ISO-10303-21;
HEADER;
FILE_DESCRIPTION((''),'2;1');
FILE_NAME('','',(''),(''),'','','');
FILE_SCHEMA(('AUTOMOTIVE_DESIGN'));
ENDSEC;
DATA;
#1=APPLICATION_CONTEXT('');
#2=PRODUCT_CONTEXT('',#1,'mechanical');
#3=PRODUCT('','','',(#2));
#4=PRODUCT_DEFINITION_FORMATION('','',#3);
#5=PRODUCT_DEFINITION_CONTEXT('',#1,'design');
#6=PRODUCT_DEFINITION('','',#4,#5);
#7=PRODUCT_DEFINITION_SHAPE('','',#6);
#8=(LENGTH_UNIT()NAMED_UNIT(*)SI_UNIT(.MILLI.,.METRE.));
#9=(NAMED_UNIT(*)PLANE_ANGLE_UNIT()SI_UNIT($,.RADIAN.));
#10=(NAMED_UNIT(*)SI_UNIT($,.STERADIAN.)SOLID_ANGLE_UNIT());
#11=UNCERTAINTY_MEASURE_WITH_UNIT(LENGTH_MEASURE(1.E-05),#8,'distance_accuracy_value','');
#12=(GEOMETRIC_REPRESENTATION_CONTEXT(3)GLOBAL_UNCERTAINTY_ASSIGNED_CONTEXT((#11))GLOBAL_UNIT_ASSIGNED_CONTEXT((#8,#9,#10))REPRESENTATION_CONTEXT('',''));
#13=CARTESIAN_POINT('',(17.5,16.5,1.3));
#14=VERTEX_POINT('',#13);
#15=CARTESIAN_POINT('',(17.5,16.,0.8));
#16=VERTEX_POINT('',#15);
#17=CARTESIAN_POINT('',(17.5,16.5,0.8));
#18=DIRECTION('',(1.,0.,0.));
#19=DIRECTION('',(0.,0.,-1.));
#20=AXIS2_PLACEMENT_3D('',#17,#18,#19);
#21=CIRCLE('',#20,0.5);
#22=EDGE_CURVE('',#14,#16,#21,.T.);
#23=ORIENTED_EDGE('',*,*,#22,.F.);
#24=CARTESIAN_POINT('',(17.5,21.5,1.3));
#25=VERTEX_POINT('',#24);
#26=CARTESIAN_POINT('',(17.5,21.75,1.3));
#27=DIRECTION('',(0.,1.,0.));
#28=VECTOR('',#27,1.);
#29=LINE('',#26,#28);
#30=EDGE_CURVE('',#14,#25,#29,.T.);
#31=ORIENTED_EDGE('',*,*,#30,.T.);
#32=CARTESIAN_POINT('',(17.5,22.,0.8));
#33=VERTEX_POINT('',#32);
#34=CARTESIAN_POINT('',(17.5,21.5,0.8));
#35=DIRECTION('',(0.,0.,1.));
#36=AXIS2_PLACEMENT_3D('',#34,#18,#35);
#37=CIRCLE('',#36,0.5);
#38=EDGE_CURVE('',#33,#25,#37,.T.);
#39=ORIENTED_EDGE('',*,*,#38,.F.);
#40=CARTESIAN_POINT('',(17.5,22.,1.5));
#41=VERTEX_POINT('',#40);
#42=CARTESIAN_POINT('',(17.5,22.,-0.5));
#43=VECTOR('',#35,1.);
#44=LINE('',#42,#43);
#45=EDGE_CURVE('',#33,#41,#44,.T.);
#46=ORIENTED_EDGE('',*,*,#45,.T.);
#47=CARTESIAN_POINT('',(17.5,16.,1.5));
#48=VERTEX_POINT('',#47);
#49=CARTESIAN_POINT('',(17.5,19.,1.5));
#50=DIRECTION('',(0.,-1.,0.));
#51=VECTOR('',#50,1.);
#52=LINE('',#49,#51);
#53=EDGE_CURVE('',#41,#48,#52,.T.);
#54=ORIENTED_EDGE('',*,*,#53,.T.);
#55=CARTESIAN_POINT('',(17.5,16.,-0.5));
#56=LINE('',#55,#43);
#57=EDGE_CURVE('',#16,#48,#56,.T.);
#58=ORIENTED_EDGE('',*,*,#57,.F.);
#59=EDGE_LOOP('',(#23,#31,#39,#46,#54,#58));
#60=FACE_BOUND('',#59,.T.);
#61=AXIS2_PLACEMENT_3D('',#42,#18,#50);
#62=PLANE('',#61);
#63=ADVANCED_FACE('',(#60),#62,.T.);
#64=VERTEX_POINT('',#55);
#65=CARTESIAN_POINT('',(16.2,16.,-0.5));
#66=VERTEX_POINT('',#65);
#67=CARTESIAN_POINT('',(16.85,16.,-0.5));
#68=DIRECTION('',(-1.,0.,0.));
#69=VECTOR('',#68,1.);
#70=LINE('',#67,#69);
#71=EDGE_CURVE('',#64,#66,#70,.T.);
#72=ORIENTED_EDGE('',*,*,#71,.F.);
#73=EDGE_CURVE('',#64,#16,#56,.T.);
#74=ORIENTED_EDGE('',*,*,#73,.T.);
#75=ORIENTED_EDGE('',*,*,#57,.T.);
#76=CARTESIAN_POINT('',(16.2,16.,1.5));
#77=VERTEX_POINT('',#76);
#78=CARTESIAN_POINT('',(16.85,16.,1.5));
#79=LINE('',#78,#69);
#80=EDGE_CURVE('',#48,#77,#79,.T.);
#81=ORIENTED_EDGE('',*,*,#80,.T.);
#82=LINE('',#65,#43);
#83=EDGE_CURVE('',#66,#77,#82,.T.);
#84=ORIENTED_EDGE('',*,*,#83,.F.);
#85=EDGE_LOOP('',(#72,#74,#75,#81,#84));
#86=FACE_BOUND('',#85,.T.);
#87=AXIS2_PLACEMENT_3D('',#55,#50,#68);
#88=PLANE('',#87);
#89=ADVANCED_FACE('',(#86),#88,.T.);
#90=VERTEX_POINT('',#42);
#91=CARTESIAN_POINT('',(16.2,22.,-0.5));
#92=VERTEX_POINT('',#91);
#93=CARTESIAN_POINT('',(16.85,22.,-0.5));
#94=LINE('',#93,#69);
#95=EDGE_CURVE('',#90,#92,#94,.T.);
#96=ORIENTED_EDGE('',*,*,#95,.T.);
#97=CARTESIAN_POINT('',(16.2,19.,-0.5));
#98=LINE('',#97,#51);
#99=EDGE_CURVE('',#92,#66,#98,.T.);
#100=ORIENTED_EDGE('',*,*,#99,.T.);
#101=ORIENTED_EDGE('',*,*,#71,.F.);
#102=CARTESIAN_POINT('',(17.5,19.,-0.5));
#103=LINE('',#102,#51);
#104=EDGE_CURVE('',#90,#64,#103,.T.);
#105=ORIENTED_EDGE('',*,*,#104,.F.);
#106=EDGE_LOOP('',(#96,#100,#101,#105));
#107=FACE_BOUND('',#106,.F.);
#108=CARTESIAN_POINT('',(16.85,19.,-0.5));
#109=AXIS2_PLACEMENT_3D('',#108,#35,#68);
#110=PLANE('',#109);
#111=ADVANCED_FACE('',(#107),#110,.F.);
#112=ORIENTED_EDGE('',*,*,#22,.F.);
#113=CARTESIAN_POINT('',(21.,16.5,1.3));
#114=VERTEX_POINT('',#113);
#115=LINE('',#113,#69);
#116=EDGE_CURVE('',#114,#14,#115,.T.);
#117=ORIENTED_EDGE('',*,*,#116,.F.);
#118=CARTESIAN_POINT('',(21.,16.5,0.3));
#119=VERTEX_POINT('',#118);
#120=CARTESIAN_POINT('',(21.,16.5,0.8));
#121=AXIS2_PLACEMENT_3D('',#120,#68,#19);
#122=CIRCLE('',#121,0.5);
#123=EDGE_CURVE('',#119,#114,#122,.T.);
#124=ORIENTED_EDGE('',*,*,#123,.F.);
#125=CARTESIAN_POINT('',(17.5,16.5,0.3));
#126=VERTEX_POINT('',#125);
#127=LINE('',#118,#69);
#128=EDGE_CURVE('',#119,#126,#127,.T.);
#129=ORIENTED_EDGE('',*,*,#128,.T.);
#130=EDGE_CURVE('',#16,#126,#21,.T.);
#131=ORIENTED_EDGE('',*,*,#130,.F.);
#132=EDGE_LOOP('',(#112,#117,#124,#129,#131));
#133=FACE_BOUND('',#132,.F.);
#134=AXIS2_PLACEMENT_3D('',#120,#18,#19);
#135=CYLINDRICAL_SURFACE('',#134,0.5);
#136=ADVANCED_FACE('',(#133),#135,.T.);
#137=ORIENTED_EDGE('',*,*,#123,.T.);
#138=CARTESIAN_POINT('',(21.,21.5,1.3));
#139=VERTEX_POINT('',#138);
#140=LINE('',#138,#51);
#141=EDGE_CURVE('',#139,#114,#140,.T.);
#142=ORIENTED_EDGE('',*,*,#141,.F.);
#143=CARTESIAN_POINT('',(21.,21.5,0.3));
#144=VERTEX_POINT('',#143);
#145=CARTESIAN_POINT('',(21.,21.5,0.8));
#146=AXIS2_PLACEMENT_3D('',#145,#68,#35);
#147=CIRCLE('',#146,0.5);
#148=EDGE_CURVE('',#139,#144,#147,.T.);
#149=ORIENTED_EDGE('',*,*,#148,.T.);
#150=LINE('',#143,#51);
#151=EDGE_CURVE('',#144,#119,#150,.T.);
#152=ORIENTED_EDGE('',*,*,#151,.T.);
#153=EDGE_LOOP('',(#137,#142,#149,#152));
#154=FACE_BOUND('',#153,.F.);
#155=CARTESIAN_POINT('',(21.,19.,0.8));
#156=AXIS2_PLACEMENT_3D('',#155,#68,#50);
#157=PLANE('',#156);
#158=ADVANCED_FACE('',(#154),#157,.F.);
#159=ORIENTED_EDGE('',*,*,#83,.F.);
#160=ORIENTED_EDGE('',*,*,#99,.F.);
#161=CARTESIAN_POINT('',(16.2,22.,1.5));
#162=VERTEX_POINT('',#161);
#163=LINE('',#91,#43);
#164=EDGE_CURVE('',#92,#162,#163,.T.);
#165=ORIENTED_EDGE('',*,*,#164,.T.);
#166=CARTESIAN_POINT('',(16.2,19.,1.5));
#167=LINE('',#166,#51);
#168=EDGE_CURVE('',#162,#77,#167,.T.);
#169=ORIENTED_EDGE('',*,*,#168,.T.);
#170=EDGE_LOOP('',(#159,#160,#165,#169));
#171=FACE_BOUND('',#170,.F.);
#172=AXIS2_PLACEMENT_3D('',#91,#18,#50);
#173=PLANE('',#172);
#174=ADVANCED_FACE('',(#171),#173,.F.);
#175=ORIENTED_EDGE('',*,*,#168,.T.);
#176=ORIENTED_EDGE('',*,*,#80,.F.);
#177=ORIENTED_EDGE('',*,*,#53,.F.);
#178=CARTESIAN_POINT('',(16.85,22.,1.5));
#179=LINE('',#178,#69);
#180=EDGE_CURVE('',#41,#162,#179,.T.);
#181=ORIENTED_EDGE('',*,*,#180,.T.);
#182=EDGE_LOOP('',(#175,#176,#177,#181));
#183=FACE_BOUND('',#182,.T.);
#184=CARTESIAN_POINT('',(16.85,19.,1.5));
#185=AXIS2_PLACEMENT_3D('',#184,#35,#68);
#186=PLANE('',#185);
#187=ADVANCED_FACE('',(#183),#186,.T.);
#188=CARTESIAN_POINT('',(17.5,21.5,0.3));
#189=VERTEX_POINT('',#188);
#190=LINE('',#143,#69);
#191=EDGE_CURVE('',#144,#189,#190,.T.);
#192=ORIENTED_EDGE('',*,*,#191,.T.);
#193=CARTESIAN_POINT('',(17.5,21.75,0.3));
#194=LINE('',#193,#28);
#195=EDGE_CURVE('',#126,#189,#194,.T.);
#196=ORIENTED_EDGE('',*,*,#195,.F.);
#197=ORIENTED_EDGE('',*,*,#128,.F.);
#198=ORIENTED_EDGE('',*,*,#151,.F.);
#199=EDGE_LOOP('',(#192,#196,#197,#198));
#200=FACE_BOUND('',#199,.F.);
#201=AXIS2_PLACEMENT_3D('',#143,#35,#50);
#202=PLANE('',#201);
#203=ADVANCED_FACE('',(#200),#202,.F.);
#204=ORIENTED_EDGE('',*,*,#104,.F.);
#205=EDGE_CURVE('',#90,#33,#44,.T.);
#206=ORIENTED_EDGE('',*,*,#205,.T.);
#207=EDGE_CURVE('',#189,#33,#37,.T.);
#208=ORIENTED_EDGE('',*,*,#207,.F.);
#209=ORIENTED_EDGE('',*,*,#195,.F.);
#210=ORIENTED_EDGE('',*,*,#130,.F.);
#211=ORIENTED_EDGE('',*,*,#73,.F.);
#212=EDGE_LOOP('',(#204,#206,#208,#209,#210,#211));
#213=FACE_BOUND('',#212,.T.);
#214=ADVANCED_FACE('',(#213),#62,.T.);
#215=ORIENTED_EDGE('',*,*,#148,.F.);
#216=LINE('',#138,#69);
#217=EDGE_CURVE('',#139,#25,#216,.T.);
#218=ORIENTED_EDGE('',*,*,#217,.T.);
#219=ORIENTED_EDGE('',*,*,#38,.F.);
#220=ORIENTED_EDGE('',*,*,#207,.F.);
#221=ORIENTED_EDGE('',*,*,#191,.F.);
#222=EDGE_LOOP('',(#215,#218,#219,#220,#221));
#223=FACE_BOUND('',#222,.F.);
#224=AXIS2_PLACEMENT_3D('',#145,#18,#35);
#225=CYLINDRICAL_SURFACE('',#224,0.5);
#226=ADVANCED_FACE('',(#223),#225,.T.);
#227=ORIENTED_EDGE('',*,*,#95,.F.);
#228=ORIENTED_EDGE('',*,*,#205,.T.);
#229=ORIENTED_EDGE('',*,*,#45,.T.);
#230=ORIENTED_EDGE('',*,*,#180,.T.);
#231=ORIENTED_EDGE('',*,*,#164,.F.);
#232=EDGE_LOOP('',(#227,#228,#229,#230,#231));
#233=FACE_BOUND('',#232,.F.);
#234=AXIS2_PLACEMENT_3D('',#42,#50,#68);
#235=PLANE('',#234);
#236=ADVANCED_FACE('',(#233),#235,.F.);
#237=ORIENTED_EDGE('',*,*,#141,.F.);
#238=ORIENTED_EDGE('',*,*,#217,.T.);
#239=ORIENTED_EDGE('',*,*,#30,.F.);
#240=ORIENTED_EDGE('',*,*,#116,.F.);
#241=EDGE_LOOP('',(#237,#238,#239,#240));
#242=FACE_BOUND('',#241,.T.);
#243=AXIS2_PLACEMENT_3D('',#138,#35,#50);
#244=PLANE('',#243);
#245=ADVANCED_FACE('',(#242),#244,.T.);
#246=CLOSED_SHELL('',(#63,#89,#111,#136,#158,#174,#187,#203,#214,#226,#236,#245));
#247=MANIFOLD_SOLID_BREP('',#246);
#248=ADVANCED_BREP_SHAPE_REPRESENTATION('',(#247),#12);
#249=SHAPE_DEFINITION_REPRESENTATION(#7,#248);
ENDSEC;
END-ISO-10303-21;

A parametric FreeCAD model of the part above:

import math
import FreeCAD as App
import Part
import Sketcher
Q = App.Units.Quantity

doc = App.newDocument("Part")
body = doc.addObject("PartDesign::Body", "Body")

# Sketch on XY plane
sketch1 = doc.addObject("Sketcher::SketchObject", "Sketch")
body.addObject(sketch1)
sketch1.AttachmentSupport = (doc.XY_Plane, [""])
sketch1.MapMode = "FlatFace"
sketch1.AttachmentOffset = App.Placement(App.Vector(0, 0, 0.5), App.Rotation())
sketch1.addGeometry([
    Part.LineSegment(App.Vector(0, 22, 0), App.Vector(0, 16, 0)),
    Part.LineSegment(App.Vector(0, 16, 0), App.Vector(1.3, 16, 0)),
    Part.LineSegment(App.Vector(1.3, 16, 0), App.Vector(1.3, 22, 0)),
    Part.LineSegment(App.Vector(1.3, 22, 0), App.Vector(0, 22, 0)),
], False)
sketch1.addConstraint([
    Sketcher.Constraint("Coincident", 0, 2, 1, 1),
    Sketcher.Constraint("Coincident", 1, 2, 2, 1),
    Sketcher.Constraint("Coincident", 2, 2, 3, 1),
    Sketcher.Constraint("Coincident", 3, 2, 0, 1),
    Sketcher.Constraint("Vertical", 0),
    Sketcher.Constraint("Horizontal", 1),
    Sketcher.Constraint("Vertical", 2),
    Sketcher.Constraint("Horizontal", 3),
    Sketcher.Constraint("PointOnObject", 0, 2, -2),
    Sketcher.Constraint("DistanceY", 0, 2, 0, 1, Q("6 mm")),
    Sketcher.Constraint("DistanceX", 1, 1, 1, 2, Q("1.3 mm")),
    Sketcher.Constraint("DistanceY", -1, 1, 0, 2, Q("16 mm")),
])
pad1 = doc.addObject("PartDesign::Pad", "Pad")
body.addObject(pad1)
pad1.Profile = sketch1
pad1.Length = 2
body2 = doc.addObject("PartDesign::Body", "Body001")

# Sketch on YZ plane
sketch2 = doc.addObject("Sketcher::SketchObject", "Sketch001")
body2.addObject(sketch2)
sketch2.AttachmentSupport = (doc.getObject("YZ_Plane001"), [""])
sketch2.MapMode = "FlatFace"
sketch2.addGeometry([
    Part.ArcOfCircle(Part.Circle(App.Vector(14, -1.5, 0), App.Vector(0, 0, 1), 0.5), math.radians(90), math.radians(270)),
    Part.LineSegment(App.Vector(14, -2, 0), App.Vector(19, -2, 0)),
    Part.ArcOfCircle(Part.Circle(App.Vector(19, -1.5, 0), App.Vector(0, 0, 1), 0.5), math.radians(-90), math.radians(90)),
    Part.LineSegment(App.Vector(19, -1, 0), App.Vector(14, -1, 0)),
], False)
sketch2.addConstraint([
    Sketcher.Constraint("Tangent", 0, 2, 1, 1),
    Sketcher.Constraint("Tangent", 1, 2, 2, 1),
    Sketcher.Constraint("Tangent", 2, 2, 3, 1),
    Sketcher.Constraint("Tangent", 3, 2, 0, 1),
    Sketcher.Constraint("Horizontal", 1),
    Sketcher.Constraint("Horizontal", 3),
    Sketcher.Constraint("Radius", 0, Q("0.5 mm")),
    Sketcher.Constraint("DistanceX", 1, 1, 1, 2, Q("5 mm")),
    Sketcher.Constraint("DistanceX", -1, 1, 0, 3, Q("14 mm")),
    Sketcher.Constraint("DistanceY", 0, 2, -1, 1, Q("2 mm")),
])
pad2 = doc.addObject("PartDesign::Pad", "Pad001")
body2.addObject(pad2)
pad2.Profile = sketch2
pad2.Length = 4
body3 = doc.addObject("PartDesign::Body", "Body002")
doc.recompute()

body2.Placement = App.Placement(App.Vector(-3.5, 2.5, 3.3), App.Rotation(App.Vector(0, 0, 1), 0))
boolean = doc.addObject("PartDesign::Boolean", "Boolean")
body3.addObject(boolean)
boolean.Type = "Fuse"
boolean.addObjects([body2])
doc.recompute()

boolean2 = doc.addObject("PartDesign::Boolean", "Boolean001")
body3.addObject(boolean2)
boolean2.Type = "Fuse"
boolean2.addObjects([body])
body4 = doc.addObject("PartDesign::Body", "Body003")
doc.recompute()

body3.Placement = App.Placement(App.Vector(17.5, 38, -1), App.Rotation(App.Vector(0, 0, 1), 180))
boolean3 = doc.addObject("PartDesign::Boolean", "Boolean002")
body4.addObject(boolean3)
boolean3.Type = "Fuse"
boolean3.addObjects([body3])

doc.recompute()
